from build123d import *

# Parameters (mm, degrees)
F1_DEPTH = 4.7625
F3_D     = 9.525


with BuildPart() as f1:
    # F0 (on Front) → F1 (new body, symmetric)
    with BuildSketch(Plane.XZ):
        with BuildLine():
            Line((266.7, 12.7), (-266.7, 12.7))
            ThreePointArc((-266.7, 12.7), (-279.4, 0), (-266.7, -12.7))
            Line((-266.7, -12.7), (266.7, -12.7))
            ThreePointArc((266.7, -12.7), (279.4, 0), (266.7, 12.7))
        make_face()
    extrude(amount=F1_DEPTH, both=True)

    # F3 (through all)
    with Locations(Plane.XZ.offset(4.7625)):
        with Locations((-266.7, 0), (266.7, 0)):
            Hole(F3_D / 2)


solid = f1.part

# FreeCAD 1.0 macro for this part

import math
import FreeCAD as App
import Part
import Sketcher
from FreeCAD import Vector
Q = App.Units.Quantity

doc = App.newDocument("Part")
body = doc.addObject("PartDesign::Body", "Body")

sketch1 = body.newObject("Sketcher::SketchObject", "Sketch")
sketch1.AttachmentSupport = (doc.getObject("XZ_Plane"), [""])
sketch1.MapMode = "FlatFace"
sketch1.addGeometry([
    Part.LineSegment(Vector(266.7, 12.7, 0), Vector(-266.7, 12.7, 0)),
    Part.ArcOfCircle(Part.Circle(Vector(-266.7, 0, 0), Vector(0, 0, 1), 12.7), math.radians(90), math.radians(270)),
    Part.LineSegment(Vector(-266.7, -12.7, 0), Vector(266.7, -12.7, 0)),
    Part.ArcOfCircle(Part.Circle(Vector(266.7, 0, 0), Vector(0, 0, 1), 12.7), math.radians(-90), math.radians(90)),
], False)
sketch1.addConstraint([
    Sketcher.Constraint("Tangent", 0, 2, 1, 1),
    Sketcher.Constraint("Tangent", 1, 2, 2, 1),
    Sketcher.Constraint("Tangent", 2, 2, 3, 1),
    Sketcher.Constraint("Tangent", 3, 2, 0, 1),
    Sketcher.Constraint("Horizontal", 0),
    Sketcher.Constraint("Horizontal", 2),
    Sketcher.Constraint("Symmetric", 1, 3, 3, 3, -1, 1),
    Sketcher.Constraint("Radius", 1, Q("0.5 in")),
    Sketcher.Constraint("DistanceX", 0, 2, 0, 1, Q("21 in")),
])
pad1 = body.newObject("PartDesign::Pad", "Pad")
pad1.Profile = sketch1
pad1.Length = Q("0.375 in")
pad1.Midplane = True

sketch2 = body.newObject("Sketcher::SketchObject", "Sketch001")
sketch2.AttachmentSupport = (doc.getObject("XZ_Plane"), [""])
sketch2.MapMode = "FlatFace"
sketch2.AttachmentOffset = App.Placement(Vector(0, 0, 0.1875 * 25.4), App.Rotation())
sketch2.addGeometry([
    Part.Circle(Vector(-266.7, 0, 0), Vector(0, 0, 1), 4.7625),
    Part.Circle(Vector(266.7, 0, 0), Vector(0, 0, 1), 4.7625),
], False)
sketch2.addConstraint([
    Sketcher.Constraint("Equal", 0, 1),
    Sketcher.Constraint("Symmetric", 0, 3, 1, 3, -1, 1),
    Sketcher.Constraint("PointOnObject", 0, 3, -1),
    Sketcher.Constraint("Diameter", 0, Q("0.375 in")),
    Sketcher.Constraint("DistanceX", 0, 3, 1, 3, Q("21 in")),
])
doc.recompute()
hole = body.newObject("PartDesign::Hole", "Hole")
hole.Profile = sketch2
hole.ThreadType = "None"
hole.Diameter = Q("0.375 in")
hole.DepthType = "ThroughAll"

doc.recompute()
